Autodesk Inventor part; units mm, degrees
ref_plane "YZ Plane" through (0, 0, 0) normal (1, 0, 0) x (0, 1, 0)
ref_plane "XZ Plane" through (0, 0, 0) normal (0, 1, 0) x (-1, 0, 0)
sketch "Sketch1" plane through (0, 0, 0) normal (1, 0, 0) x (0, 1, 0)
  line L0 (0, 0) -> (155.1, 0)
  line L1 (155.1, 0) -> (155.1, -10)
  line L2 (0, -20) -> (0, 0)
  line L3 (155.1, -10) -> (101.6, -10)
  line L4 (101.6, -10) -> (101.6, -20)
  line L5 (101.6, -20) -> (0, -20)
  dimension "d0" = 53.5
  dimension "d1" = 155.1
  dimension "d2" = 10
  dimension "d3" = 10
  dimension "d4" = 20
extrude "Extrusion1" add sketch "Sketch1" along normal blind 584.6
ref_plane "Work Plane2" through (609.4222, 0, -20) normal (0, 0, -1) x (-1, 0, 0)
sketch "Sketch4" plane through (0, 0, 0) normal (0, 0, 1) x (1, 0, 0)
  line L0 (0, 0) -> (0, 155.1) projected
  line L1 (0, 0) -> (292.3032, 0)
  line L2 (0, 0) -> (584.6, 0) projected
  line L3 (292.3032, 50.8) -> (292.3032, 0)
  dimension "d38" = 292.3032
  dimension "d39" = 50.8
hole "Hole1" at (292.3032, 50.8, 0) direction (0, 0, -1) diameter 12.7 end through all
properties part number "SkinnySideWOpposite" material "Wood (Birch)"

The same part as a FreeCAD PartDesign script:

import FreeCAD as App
import Part
import Sketcher
Q = App.Units.Quantity

doc = App.newDocument("Part")
body = doc.addObject("PartDesign::Body", "Body")

# Sketch on YZ plane
sketch1 = doc.addObject("Sketcher::SketchObject", "Sketch")
body.addObject(sketch1)
sketch1.AttachmentSupport = (doc.YZ_Plane, [""])
sketch1.MapMode = "FlatFace"
sketch1.addGeometry([
    Part.LineSegment(App.Vector(155, 0, 0), App.Vector(0, 0, 0)),  # 0
    Part.LineSegment(App.Vector(0, 0, 0), App.Vector(0, -20, 0)),  # 1
    Part.LineSegment(App.Vector(0, -20, 0), App.Vector(102, -20, 0)),  # 2
    Part.LineSegment(App.Vector(102, -20, 0), App.Vector(102, -10, 0)),  # 3
    Part.LineSegment(App.Vector(102, -10, 0), App.Vector(155, -10, 0)),  # 4
    Part.LineSegment(App.Vector(155, -10, 0), App.Vector(155, 0, 0)),  # 5
], False)
sketch1.addConstraint([
    Sketcher.Constraint("Coincident", 0, 2, 1, 1),
    Sketcher.Constraint("Coincident", 1, 2, 2, 1),
    Sketcher.Constraint("Coincident", 2, 2, 3, 1),
    Sketcher.Constraint("Coincident", 3, 2, 4, 1),
    Sketcher.Constraint("Coincident", 4, 2, 5, 1),
    Sketcher.Constraint("Coincident", 5, 2, 0, 1),
    Sketcher.Constraint("Horizontal", 0),
    Sketcher.Constraint("Vertical", 1),
    Sketcher.Constraint("Horizontal", 2),
    Sketcher.Constraint("Vertical", 3),
    Sketcher.Constraint("Horizontal", 4),
    Sketcher.Constraint("Vertical", 5),
    Sketcher.Constraint("Coincident", 0, 2, -1, 1),
    Sketcher.Constraint("Equal", 3, 5),
    Sketcher.Constraint("DistanceX", 2, 1, 2, 2, Q("4 in")),
    Sketcher.Constraint("DistanceX", 0, 2, 0, 1, Q("6.1063 in")),
    Sketcher.Constraint("DistanceY", 1, 2, 1, 1, Q("0.7874 in")),
])
pad1 = doc.addObject("PartDesign::Pad", "Pad")
body.addObject(pad1)
pad1.Profile = sketch1
pad1.Length = 584.6

# Sketch on XY plane
sketch2 = doc.addObject("Sketcher::SketchObject", "Sketch001")
body.addObject(sketch2)
sketch2.AttachmentSupport = (doc.XY_Plane, [""])
sketch2.MapMode = "FlatFace"
sketch2.addGeometry(Part.Circle(App.Vector(292, 51, 0), App.Vector(0, 0, 1), 6), False)
sketch2.addConstraint([
    Sketcher.Constraint("Diameter", 0, Q("0.5 in")),
    Sketcher.Constraint("DistanceY", -1, 1, 0, 3, Q("2 in")),
    Sketcher.Constraint("DistanceX", -1, 1, 0, 3, Q("11.508 in")),
])
doc.recompute()
hole = doc.addObject("PartDesign::Hole", "Hole")
body.addObject(hole)
hole.Profile = sketch2
hole.ThreadType = "None"
hole.Diameter = Q("0.5 in")
hole.DepthType = "ThroughAll"

doc.recompute()
